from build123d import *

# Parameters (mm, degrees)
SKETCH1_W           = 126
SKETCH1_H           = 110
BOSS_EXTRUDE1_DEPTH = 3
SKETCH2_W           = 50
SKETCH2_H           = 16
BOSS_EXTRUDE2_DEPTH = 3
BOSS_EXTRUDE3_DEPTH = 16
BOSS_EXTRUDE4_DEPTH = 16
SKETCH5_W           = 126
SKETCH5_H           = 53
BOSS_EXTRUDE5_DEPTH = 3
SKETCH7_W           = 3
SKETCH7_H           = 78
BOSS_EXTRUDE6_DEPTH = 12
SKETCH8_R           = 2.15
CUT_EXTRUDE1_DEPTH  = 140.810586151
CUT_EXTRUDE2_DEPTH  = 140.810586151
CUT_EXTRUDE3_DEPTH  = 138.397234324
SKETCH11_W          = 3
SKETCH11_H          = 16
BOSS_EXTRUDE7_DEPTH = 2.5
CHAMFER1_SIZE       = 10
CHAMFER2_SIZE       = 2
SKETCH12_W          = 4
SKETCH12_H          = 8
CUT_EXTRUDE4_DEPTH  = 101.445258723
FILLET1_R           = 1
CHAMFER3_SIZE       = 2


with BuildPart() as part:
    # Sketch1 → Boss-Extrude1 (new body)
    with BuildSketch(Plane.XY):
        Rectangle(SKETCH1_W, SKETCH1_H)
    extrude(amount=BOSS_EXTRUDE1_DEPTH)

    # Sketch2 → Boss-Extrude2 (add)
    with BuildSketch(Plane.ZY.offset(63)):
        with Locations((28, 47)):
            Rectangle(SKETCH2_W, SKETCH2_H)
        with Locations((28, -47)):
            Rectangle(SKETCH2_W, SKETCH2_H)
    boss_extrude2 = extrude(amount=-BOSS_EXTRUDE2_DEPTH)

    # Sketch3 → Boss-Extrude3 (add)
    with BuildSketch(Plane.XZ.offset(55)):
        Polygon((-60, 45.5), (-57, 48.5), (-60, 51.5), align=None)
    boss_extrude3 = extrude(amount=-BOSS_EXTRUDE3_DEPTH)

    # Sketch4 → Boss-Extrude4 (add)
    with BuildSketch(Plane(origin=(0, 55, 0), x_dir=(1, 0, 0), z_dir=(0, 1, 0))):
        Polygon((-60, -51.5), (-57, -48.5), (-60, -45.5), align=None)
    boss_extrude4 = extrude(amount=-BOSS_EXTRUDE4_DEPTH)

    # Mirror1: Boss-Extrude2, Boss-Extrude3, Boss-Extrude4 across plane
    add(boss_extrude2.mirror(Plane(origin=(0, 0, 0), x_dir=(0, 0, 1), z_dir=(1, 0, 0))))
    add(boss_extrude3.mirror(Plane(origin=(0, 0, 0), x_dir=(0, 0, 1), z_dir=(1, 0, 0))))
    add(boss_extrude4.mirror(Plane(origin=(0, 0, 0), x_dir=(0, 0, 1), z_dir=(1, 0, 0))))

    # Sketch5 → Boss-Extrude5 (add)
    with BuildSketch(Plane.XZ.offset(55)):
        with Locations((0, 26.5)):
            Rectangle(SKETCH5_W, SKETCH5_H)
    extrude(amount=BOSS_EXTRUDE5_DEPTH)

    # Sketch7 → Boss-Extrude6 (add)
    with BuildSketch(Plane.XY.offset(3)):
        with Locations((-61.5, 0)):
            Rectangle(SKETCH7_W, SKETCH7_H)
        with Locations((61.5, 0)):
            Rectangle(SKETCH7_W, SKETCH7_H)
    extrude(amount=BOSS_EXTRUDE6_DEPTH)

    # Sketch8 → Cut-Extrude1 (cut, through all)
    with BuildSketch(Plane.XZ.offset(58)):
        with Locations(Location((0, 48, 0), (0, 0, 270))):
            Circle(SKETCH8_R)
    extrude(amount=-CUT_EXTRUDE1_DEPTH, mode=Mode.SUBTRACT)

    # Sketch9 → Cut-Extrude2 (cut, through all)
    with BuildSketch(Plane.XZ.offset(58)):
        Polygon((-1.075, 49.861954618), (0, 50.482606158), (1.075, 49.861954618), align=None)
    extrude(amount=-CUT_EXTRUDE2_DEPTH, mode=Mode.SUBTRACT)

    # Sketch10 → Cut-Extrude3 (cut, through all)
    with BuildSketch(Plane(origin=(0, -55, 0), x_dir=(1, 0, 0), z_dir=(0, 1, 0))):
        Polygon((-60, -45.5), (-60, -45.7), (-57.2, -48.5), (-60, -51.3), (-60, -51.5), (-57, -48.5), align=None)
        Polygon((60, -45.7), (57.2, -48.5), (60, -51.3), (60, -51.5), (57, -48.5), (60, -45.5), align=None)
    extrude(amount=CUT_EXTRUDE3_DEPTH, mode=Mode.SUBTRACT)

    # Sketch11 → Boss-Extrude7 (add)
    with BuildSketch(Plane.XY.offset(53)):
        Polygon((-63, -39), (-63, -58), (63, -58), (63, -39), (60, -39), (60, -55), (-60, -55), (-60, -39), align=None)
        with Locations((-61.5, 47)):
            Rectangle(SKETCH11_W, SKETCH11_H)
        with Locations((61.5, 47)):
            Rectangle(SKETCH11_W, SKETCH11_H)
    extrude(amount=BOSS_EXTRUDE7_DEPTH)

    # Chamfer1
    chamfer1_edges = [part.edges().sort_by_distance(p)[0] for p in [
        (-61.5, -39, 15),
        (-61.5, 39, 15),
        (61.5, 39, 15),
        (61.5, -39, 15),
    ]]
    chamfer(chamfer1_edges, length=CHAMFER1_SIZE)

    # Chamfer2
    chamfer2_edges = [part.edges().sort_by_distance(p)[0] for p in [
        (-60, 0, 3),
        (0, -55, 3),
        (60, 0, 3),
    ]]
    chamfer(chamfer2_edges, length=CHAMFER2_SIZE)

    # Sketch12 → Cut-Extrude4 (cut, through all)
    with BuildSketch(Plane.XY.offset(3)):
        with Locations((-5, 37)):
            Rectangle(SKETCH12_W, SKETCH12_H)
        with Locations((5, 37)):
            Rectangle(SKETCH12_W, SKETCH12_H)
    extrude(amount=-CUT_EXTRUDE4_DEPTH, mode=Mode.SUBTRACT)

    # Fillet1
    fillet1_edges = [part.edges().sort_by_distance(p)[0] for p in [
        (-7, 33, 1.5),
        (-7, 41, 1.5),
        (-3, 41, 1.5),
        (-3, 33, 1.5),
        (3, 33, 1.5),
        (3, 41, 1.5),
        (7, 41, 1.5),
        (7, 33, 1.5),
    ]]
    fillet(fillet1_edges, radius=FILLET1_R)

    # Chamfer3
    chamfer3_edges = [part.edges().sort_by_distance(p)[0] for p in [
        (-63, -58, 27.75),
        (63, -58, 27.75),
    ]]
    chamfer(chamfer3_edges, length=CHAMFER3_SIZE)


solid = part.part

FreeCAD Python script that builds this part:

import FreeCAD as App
import Part
import Sketcher
Q = App.Units.Quantity


def edges_at(feature, points):
    """Names of the edges that pass closest to the given points."""
    edges = feature.Shape.Edges
    near = lambda p: min(range(len(edges)), key=lambda i: edges[i].distToShape(Part.Vertex(*p))[0])
    return sorted({f"Edge{near(p) + 1}" for p in points})

doc = App.newDocument("Part")
body = doc.addObject("PartDesign::Body", "Body")

sketch1 = body.newObject("Sketcher::SketchObject", "Sketch")
sketch1.AttachmentSupport = (doc.getObject("XY_Plane"), [""])
sketch1.MapMode = "FlatFace"
sketch1.addGeometry([
    Part.LineSegment(App.Vector(-63, 55, 0), App.Vector(-63, -55, 0)),
    Part.LineSegment(App.Vector(-63, -55, 0), App.Vector(63, -55, 0)),
    Part.LineSegment(App.Vector(63, -55, 0), App.Vector(63, 55, 0)),
    Part.LineSegment(App.Vector(63, 55, 0), App.Vector(-63, 55, 0)),
], False)
sketch1.addConstraint([
    Sketcher.Constraint("Coincident", 0, 2, 1, 1),
    Sketcher.Constraint("Coincident", 1, 2, 2, 1),
    Sketcher.Constraint("Coincident", 2, 2, 3, 1),
    Sketcher.Constraint("Coincident", 3, 2, 0, 1),
    Sketcher.Constraint("Vertical", 0),
    Sketcher.Constraint("Horizontal", 1),
    Sketcher.Constraint("Vertical", 2),
    Sketcher.Constraint("Horizontal", 3),
    Sketcher.Constraint("Symmetric", 0, 2, 2, 2, -1, 1),
    Sketcher.Constraint("DistanceX", 1, 1, 1, 2, Q("126 mm")),
    Sketcher.Constraint("DistanceY", 0, 2, 0, 1, Q("110 mm")),
])
pad1 = body.newObject("PartDesign::Pad", "Pad")
pad1.Profile = sketch1
pad1.Length = 3

sketch2 = body.newObject("Sketcher::SketchObject", "Sketch001")
sketch2.AttachmentSupport = (doc.getObject("YZ_Plane"), [""])
sketch2.MapMode = "FlatFace"
sketch2.AttachmentOffset = App.Placement(App.Vector(0, 0, -63), App.Rotation())
sketch2.addGeometry([
    Part.LineSegment(App.Vector(55, 3, 0), App.Vector(39, 3, 0)),
    Part.LineSegment(App.Vector(39, 3, 0), App.Vector(39, 53, 0)),
    Part.LineSegment(App.Vector(39, 53, 0), App.Vector(55, 53, 0)),
    Part.LineSegment(App.Vector(55, 53, 0), App.Vector(55, 3, 0)),
    Part.LineSegment(App.Vector(-39, 3, 0), App.Vector(-55, 3, 0)),
    Part.LineSegment(App.Vector(-55, 3, 0), App.Vector(-55, 53, 0)),
    Part.LineSegment(App.Vector(-55, 53, 0), App.Vector(-39, 53, 0)),
    Part.LineSegment(App.Vector(-39, 53, 0), App.Vector(-39, 3, 0)),
], False)
sketch2.addConstraint([
    Sketcher.Constraint("Coincident", 0, 2, 1, 1),
    Sketcher.Constraint("Coincident", 1, 2, 2, 1),
    Sketcher.Constraint("Coincident", 2, 2, 3, 1),
    Sketcher.Constraint("Coincident", 3, 2, 0, 1),
    Sketcher.Constraint("Coincident", 4, 2, 5, 1),
    Sketcher.Constraint("Coincident", 5, 2, 6, 1),
    Sketcher.Constraint("Coincident", 6, 2, 7, 1),
    Sketcher.Constraint("Coincident", 7, 2, 4, 1),
    Sketcher.Constraint("Horizontal", 0),
    Sketcher.Constraint("Vertical", 1),
    Sketcher.Constraint("Horizontal", 2),
    Sketcher.Constraint("Vertical", 3),
    Sketcher.Constraint("Horizontal", 4),
    Sketcher.Constraint("Vertical", 5),
    Sketcher.Constraint("Horizontal", 6),
    Sketcher.Constraint("Vertical", 7),
    Sketcher.Constraint("Symmetric", 3, 2, 4, 2, -2),
    Sketcher.Constraint("Symmetric", 1, 2, 6, 2, -2),
    Sketcher.Constraint("DistanceX", 0, 2, 0, 1, Q("16 mm")),
    Sketcher.Constraint("DistanceY", 1, 1, 1, 2, Q("50 mm")),
    Sketcher.Constraint("DistanceX", -1, 1, 0, 2, Q("39 mm")),
    Sketcher.Constraint("DistanceY", -1, 1, 0, 2, Q("3 mm")),
])
pad2 = body.newObject("PartDesign::Pad", "Pad001")
pad2.Profile = sketch2
pad2.Length = 3

sketch3 = body.newObject("Sketcher::SketchObject", "Sketch002")
sketch3.AttachmentSupport = (doc.getObject("XZ_Plane"), [""])
sketch3.MapMode = "FlatFace"
sketch3.AttachmentOffset = App.Placement(App.Vector(0, 0, 55), App.Rotation())
sketch3.addGeometry([
    Part.LineSegment(App.Vector(-60, 45.5, 0), App.Vector(-57, 48.5, 0)),
    Part.LineSegment(App.Vector(-57, 48.5, 0), App.Vector(-60, 51.5, 0)),
    Part.LineSegment(App.Vector(-60, 51.5, 0), App.Vector(-60, 45.5, 0)),
], False)
sketch3.addConstraint([
    Sketcher.Constraint("Coincident", 0, 2, 1, 1),
    Sketcher.Constraint("Coincident", 1, 2, 2, 1),
    Sketcher.Constraint("Coincident", 2, 2, 0, 1),
    Sketcher.Constraint("Vertical", 2),
    Sketcher.Constraint("Perpendicular", 0, 1),
    Sketcher.Constraint("Equal", 0, 1),
    Sketcher.Constraint("DistanceY", 2, 2, 2, 1, Q("6 mm")),
    Sketcher.Constraint("DistanceX", 0, 2, -1, 1, Q("57 mm")),
    Sketcher.Constraint("DistanceY", -1, 1, 0, 2, Q("48.5 mm")),
])
pad3 = body.newObject("PartDesign::Pad", "Pad002")
pad3.Profile = sketch3
pad3.Length = 16
pad3.Reversed = True

sketch4 = body.newObject("Sketcher::SketchObject", "Sketch003")
sketch4.AttachmentSupport = (doc.getObject("XZ_Plane"), [""])
sketch4.MapMode = "FlatFace"
sketch4.AttachmentOffset = App.Placement(App.Vector(0, 0, -55), App.Rotation())
sketch4.addGeometry([
    Part.LineSegment(App.Vector(-60, 51.5, 0), App.Vector(-57, 48.5, 0)),
    Part.LineSegment(App.Vector(-57, 48.5, 0), App.Vector(-60, 45.5, 0)),
    Part.LineSegment(App.Vector(-60, 45.5, 0), App.Vector(-60, 51.5, 0)),
], False)
sketch4.addConstraint([
    Sketcher.Constraint("Coincident", 0, 2, 1, 1),
    Sketcher.Constraint("Coincident", 1, 2, 2, 1),
    Sketcher.Constraint("Coincident", 2, 2, 0, 1),
    Sketcher.Constraint("Vertical", 2),
    Sketcher.Constraint("Perpendicular", 0, 1),
    Sketcher.Constraint("Equal", 0, 1),
    Sketcher.Constraint("DistanceY", 2, 1, 2, 2, Q("6 mm")),
    Sketcher.Constraint("DistanceX", 0, 2, -1, 1, Q("57 mm")),
    Sketcher.Constraint("DistanceY", -1, 1, 0, 2, Q("48.5 mm")),
])
pad4 = body.newObject("PartDesign::Pad", "Pad003")
pad4.Profile = sketch4
pad4.Length = 16
doc.recompute()

mirrored = body.newObject("PartDesign::Mirrored", "Mirrored")
mirrored.Originals = [pad2, pad3, pad4]
mirrored.MirrorPlane = (doc.getObject("YZ_Plane"), [""])
body.Tip = mirrored

sketch5 = body.newObject("Sketcher::SketchObject", "Sketch004")
sketch5.AttachmentSupport = (doc.getObject("XZ_Plane"), [""])
sketch5.MapMode = "FlatFace"
sketch5.AttachmentOffset = App.Placement(App.Vector(0, 0, 55), App.Rotation())
sketch5.addGeometry([
    Part.LineSegment(App.Vector(-63, 53, 0), App.Vector(-63, 0, 0)),
    Part.LineSegment(App.Vector(-63, 0, 0), App.Vector(63, 0, 0)),
    Part.LineSegment(App.Vector(63, 0, 0), App.Vector(63, 53, 0)),
    Part.LineSegment(App.Vector(63, 53, 0), App.Vector(-63, 53, 0)),
], False)
sketch5.addConstraint([
    Sketcher.Constraint("Coincident", 0, 2, 1, 1),
    Sketcher.Constraint("Coincident", 1, 2, 2, 1),
    Sketcher.Constraint("Coincident", 2, 2, 3, 1),
    Sketcher.Constraint("Coincident", 3, 2, 0, 1),
    Sketcher.Constraint("Vertical", 0),
    Sketcher.Constraint("Horizontal", 1),
    Sketcher.Constraint("Vertical", 2),
    Sketcher.Constraint("Horizontal", 3),
    Sketcher.Constraint("Symmetric", 0, 2, 1, 2, -1, 1),
    Sketcher.Constraint("DistanceX", 1, 1, 1, 2, Q("126 mm")),
    Sketcher.Constraint("DistanceY", 0, 2, 0, 1, Q("53 mm")),
])
pad5 = body.newObject("PartDesign::Pad", "Pad004")
pad5.Profile = sketch5
pad5.Length = 3

sketch6 = body.newObject("Sketcher::SketchObject", "Sketch005")
sketch6.AttachmentSupport = (doc.getObject("XY_Plane"), [""])
sketch6.MapMode = "FlatFace"
sketch6.AttachmentOffset = App.Placement(App.Vector(0, 0, 3), App.Rotation())
sketch6.addGeometry([
    Part.LineSegment(App.Vector(-63, 39, 0), App.Vector(-63, -39, 0)),
    Part.LineSegment(App.Vector(-63, -39, 0), App.Vector(-60, -39, 0)),
    Part.LineSegment(App.Vector(-60, -39, 0), App.Vector(-60, 39, 0)),
    Part.LineSegment(App.Vector(-60, 39, 0), App.Vector(-63, 39, 0)),
    Part.LineSegment(App.Vector(60, 39, 0), App.Vector(60, -39, 0)),
    Part.LineSegment(App.Vector(60, -39, 0), App.Vector(63, -39, 0)),
    Part.LineSegment(App.Vector(63, -39, 0), App.Vector(63, 39, 0)),
    Part.LineSegment(App.Vector(63, 39, 0), App.Vector(60, 39, 0)),
], False)
sketch6.addConstraint([
    Sketcher.Constraint("Coincident", 0, 2, 1, 1),
    Sketcher.Constraint("Coincident", 1, 2, 2, 1),
    Sketcher.Constraint("Coincident", 2, 2, 3, 1),
    Sketcher.Constraint("Coincident", 3, 2, 0, 1),
    Sketcher.Constraint("Coincident", 4, 2, 5, 1),
    Sketcher.Constraint("Coincident", 5, 2, 6, 1),
    Sketcher.Constraint("Coincident", 6, 2, 7, 1),
    Sketcher.Constraint("Coincident", 7, 2, 4, 1),
    Sketcher.Constraint("Vertical", 0),
    Sketcher.Constraint("Horizontal", 1),
    Sketcher.Constraint("Vertical", 2),
    Sketcher.Constraint("Horizontal", 3),
    Sketcher.Constraint("Vertical", 4),
    Sketcher.Constraint("Horizontal", 5),
    Sketcher.Constraint("Vertical", 6),
    Sketcher.Constraint("Horizontal", 7),
    Sketcher.Constraint("Symmetric", 2, 2, 4, 2, -1, 1),
    Sketcher.Constraint("Symmetric", 0, 2, 6, 2, -1, 1),
    Sketcher.Constraint("Horizontal", 1, 2, 4, 2),
    Sketcher.Constraint("DistanceX", 1, 1, 1, 2, Q("3 mm")),
    Sketcher.Constraint("DistanceY", 0, 2, 0, 1, Q("78 mm")),
    Sketcher.Constraint("DistanceX", 0, 2, -1, 1, Q("63 mm")),
])
pad6 = body.newObject("PartDesign::Pad", "Pad005")
pad6.Profile = sketch6
pad6.Length = 12

sketch7 = body.newObject("Sketcher::SketchObject", "Sketch006")
sketch7.AttachmentSupport = (doc.getObject("XZ_Plane"), [""])
sketch7.MapMode = "FlatFace"
sketch7.AttachmentOffset = App.Placement(App.Vector(0, 0, 58), App.Rotation())
sketch7.addGeometry(Part.Circle(App.Vector(0, 48, 0), App.Vector(0, 0, 1), 2.15), False)
sketch7.addConstraint([
    Sketcher.Constraint("PointOnObject", 0, 3, -2),
    Sketcher.Constraint("Diameter", 0, Q("4.3 mm")),
    Sketcher.Constraint("DistanceY", -1, 1, 0, 3, Q("48 mm")),
])
pocket1 = body.newObject("PartDesign::Pocket", "Pocket")
pocket1.Profile = sketch7
pocket1.Type = "ThroughAll"

sketch8 = body.newObject("Sketcher::SketchObject", "Sketch007")
sketch8.AttachmentSupport = (doc.getObject("XZ_Plane"), [""])
sketch8.MapMode = "FlatFace"
sketch8.AttachmentOffset = App.Placement(App.Vector(0, 0, 58), App.Rotation())
sketch8.addGeometry([
    Part.LineSegment(App.Vector(0, 50.482606, 0), App.Vector(-1.075, 49.861955, 0)),
    Part.LineSegment(App.Vector(-1.075, 49.861955, 0), App.Vector(1.075, 49.861955, 0)),
    Part.LineSegment(App.Vector(1.075, 49.861955, 0), App.Vector(0, 50.482606, 0)),
], False)
sketch8.addConstraint([
    Sketcher.Constraint("Coincident", 0, 2, 1, 1),
    Sketcher.Constraint("Coincident", 1, 2, 2, 1),
    Sketcher.Constraint("Coincident", 2, 2, 0, 1),
    Sketcher.Constraint("Horizontal", 1),
    Sketcher.Constraint("PointOnObject", 2, 2, -2),
    Sketcher.Constraint("Equal", 0, 2),
    Sketcher.Constraint("Angle", 0, Q("-150 deg")),
    Sketcher.Constraint("DistanceX", 1, 1, 1, 2, Q("2.15 mm")),
    Sketcher.Constraint("DistanceY", -1, 1, 0, 2, Q("49.861955 mm")),
])
pocket2 = body.newObject("PartDesign::Pocket", "Pocket001")
pocket2.Profile = sketch8
pocket2.Type = "ThroughAll"

sketch9 = body.newObject("Sketcher::SketchObject", "Sketch008")
sketch9.AttachmentSupport = (doc.getObject("XZ_Plane"), [""])
sketch9.MapMode = "FlatFace"
sketch9.AttachmentOffset = App.Placement(App.Vector(0, 0, 55), App.Rotation())
sketch9.addGeometry([
    Part.LineSegment(App.Vector(-60, 45.5, 0), App.Vector(-60, 45.7, 0)),
    Part.LineSegment(App.Vector(-60, 45.7, 0), App.Vector(-57.2, 48.5, 0)),
    Part.LineSegment(App.Vector(-57.2, 48.5, 0), App.Vector(-60, 51.3, 0)),
    Part.LineSegment(App.Vector(-60, 51.3, 0), App.Vector(-60, 51.5, 0)),
    Part.LineSegment(App.Vector(-60, 51.5, 0), App.Vector(-57, 48.5, 0)),
    Part.LineSegment(App.Vector(-57, 48.5, 0), App.Vector(-60, 45.5, 0)),
    Part.LineSegment(App.Vector(57.2, 48.5, 0), App.Vector(60, 45.7, 0)),
    Part.LineSegment(App.Vector(60, 45.7, 0), App.Vector(60, 45.5, 0)),
    Part.LineSegment(App.Vector(60, 45.5, 0), App.Vector(57, 48.5, 0)),
    Part.LineSegment(App.Vector(57, 48.5, 0), App.Vector(60, 51.5, 0)),
    Part.LineSegment(App.Vector(60, 51.5, 0), App.Vector(60, 51.3, 0)),
    Part.LineSegment(App.Vector(60, 51.3, 0), App.Vector(57.2, 48.5, 0)),
], False)
sketch9.addConstraint([
    Sketcher.Constraint("Coincident", 0, 2, 1, 1),
    Sketcher.Constraint("Coincident", 1, 2, 2, 1),
    Sketcher.Constraint("Coincident", 2, 2, 3, 1),
    Sketcher.Constraint("Coincident", 3, 2, 4, 1),
    Sketcher.Constraint("Coincident", 4, 2, 5, 1),
    Sketcher.Constraint("Coincident", 5, 2, 0, 1),
    Sketcher.Constraint("Coincident", 6, 2, 7, 1),
    Sketcher.Constraint("Coincident", 7, 2, 8, 1),
    Sketcher.Constraint("Coincident", 8, 2, 9, 1),
    Sketcher.Constraint("Coincident", 9, 2, 10, 1),
    Sketcher.Constraint("Coincident", 10, 2, 11, 1),
    Sketcher.Constraint("Coincident", 11, 2, 6, 1),
    Sketcher.Constraint("Vertical", 0),
    Sketcher.Constraint("Vertical", 3),
    Sketcher.Constraint("Vertical", 7),
    Sketcher.Constraint("Vertical", 10),
    Sketcher.Constraint("Symmetric", 0, 2, 6, 2, -2),
    Sketcher.Constraint("Symmetric", 4, 2, 8, 2, -2),
    Sketcher.Constraint("Symmetric", 3, 2, 9, 2, -2),
    Sketcher.Constraint("Symmetric", 1, 2, 11, 2, -2),
    Sketcher.Constraint("Perpendicular", 1, 2),
    Sketcher.Constraint("Parallel", 2, 4),
    Sketcher.Constraint("Perpendicular", 4, 5),
    Sketcher.Constraint("Perpendicular", 5, 6),
    Sketcher.Constraint("Parallel", 6, 8),
    Sketcher.Constraint("Parallel", 9, 11),
    Sketcher.Constraint("Horizontal", 1, 2, 4, 2),
    Sketcher.Constraint("Vertical", 0, 2, 2, 2),
    Sketcher.Constraint("DistanceY", 0, 1, 0, 2, Q("0.2 mm")),
    Sketcher.Constraint("DistanceX", 0, 2, -1, 1, Q("60 mm")),
    Sketcher.Constraint("DistanceX", 4, 2, -1, 1, Q("57 mm")),
    Sketcher.Constraint("DistanceY", -1, 1, 0, 2, Q("45.7 mm")),
])
pocket3 = body.newObject("PartDesign::Pocket", "Pocket002")
pocket3.Profile = sketch9
pocket3.Type = "ThroughAll"

sketch10 = body.newObject("Sketcher::SketchObject", "Sketch009")
sketch10.AttachmentSupport = (doc.getObject("XY_Plane"), [""])
sketch10.MapMode = "FlatFace"
sketch10.AttachmentOffset = App.Placement(App.Vector(0, 0, 53), App.Rotation())
sketch10.addGeometry([
    Part.LineSegment(App.Vector(-63, -39, 0), App.Vector(-63, -58, 0)),
    Part.LineSegment(App.Vector(-63, -58, 0), App.Vector(63, -58, 0)),
    Part.LineSegment(App.Vector(63, -58, 0), App.Vector(63, -39, 0)),
    Part.LineSegment(App.Vector(63, -39, 0), App.Vector(60, -39, 0)),
    Part.LineSegment(App.Vector(60, -39, 0), App.Vector(60, -55, 0)),
    Part.LineSegment(App.Vector(60, -55, 0), App.Vector(-60, -55, 0)),
    Part.LineSegment(App.Vector(-60, -55, 0), App.Vector(-60, -39, 0)),
    Part.LineSegment(App.Vector(-60, -39, 0), App.Vector(-63, -39, 0)),
    Part.LineSegment(App.Vector(-63, 55, 0), App.Vector(-63, 39, 0)),
    Part.LineSegment(App.Vector(-63, 39, 0), App.Vector(-60, 39, 0)),
    Part.LineSegment(App.Vector(-60, 39, 0), App.Vector(-60, 55, 0)),
    Part.LineSegment(App.Vector(-60, 55, 0), App.Vector(-63, 55, 0)),
    Part.LineSegment(App.Vector(60, 55, 0), App.Vector(60, 39, 0)),
    Part.LineSegment(App.Vector(60, 39, 0), App.Vector(63, 39, 0)),
    Part.LineSegment(App.Vector(63, 39, 0), App.Vector(63, 55, 0)),
    Part.LineSegment(App.Vector(63, 55, 0), App.Vector(60, 55, 0)),
], False)
sketch10.addConstraint([
    Sketcher.Constraint("Coincident", 0, 2, 1, 1),
    Sketcher.Constraint("Coincident", 1, 2, 2, 1),
    Sketcher.Constraint("Coincident", 2, 2, 3, 1),
    Sketcher.Constraint("Coincident", 3, 2, 4, 1),
    Sketcher.Constraint("Coincident", 4, 2, 5, 1),
    Sketcher.Constraint("Coincident", 5, 2, 6, 1),
    Sketcher.Constraint("Coincident", 6, 2, 7, 1),
    Sketcher.Constraint("Coincident", 7, 2, 0, 1),
    Sketcher.Constraint("Coincident", 8, 2, 9, 1),
    Sketcher.Constraint("Coincident", 9, 2, 10, 1),
    Sketcher.Constraint("Coincident", 10, 2, 11, 1),
    Sketcher.Constraint("Coincident", 11, 2, 8, 1),
    Sketcher.Constraint("Coincident", 12, 2, 13, 1),
    Sketcher.Constraint("Coincident", 13, 2, 14, 1),
    Sketcher.Constraint("Coincident", 14, 2, 15, 1),
    Sketcher.Constraint("Coincident", 15, 2, 12, 1),
    Sketcher.Constraint("Vertical", 0),
    Sketcher.Constraint("Horizontal", 1),
    Sketcher.Constraint("Vertical", 2),
    Sketcher.Constraint("Horizontal", 3),
    Sketcher.Constraint("Vertical", 4),
    Sketcher.Constraint("Horizontal", 5),
    Sketcher.Constraint("Vertical", 6),
    Sketcher.Constraint("Horizontal", 7),
    Sketcher.Constraint("Vertical", 8),
    Sketcher.Constraint("Horizontal", 9),
    Sketcher.Constraint("Vertical", 10),
    Sketcher.Constraint("Horizontal", 11),
    Sketcher.Constraint("Vertical", 12),
    Sketcher.Constraint("Horizontal", 13),
    Sketcher.Constraint("Vertical", 14),
    Sketcher.Constraint("Horizontal", 15),
    Sketcher.Constraint("Symmetric", 2, 2, 8, 2, -1, 1),
    Sketcher.Constraint("Symmetric", 4, 2, 10, 2, -1, 1),
    Sketcher.Constraint("Symmetric", 6, 2, 12, 2, -1, 1),
    Sketcher.Constraint("Symmetric", 3, 2, 6, 2, -2),
    Sketcher.Constraint("Symmetric", 11, 2, 14, 2, -2),
    Sketcher.Constraint("Vertical", 7, 2, 8, 2),
    Sketcher.Constraint("DistanceX", 1, 1, 1, 2, Q("126 mm")),
    Sketcher.Constraint("DistanceX", 3, 2, 3, 1, Q("3 mm")),
    Sketcher.Constraint("DistanceY", 0, 2, 0, 1, Q("19 mm")),
    Sketcher.Constraint("DistanceY", 4, 2, 4, 1, Q("16 mm")),
    Sketcher.Constraint("DistanceY", 0, 2, -1, 1, Q("58 mm")),
])
pad7 = body.newObject("PartDesign::Pad", "Pad006")
pad7.Profile = sketch10
pad7.Length = 2.5
doc.recompute()

chamfer = body.newObject("PartDesign::Chamfer", "Chamfer")
chamfer.Base = (pad7, edges_at(pad7, [
    (-61.5, -39, 15),
    (-61.5, 39, 15),
    (61.5, 39, 15),
    (61.5, -39, 15),
]))
chamfer.Size = 10
doc.recompute()

chamfer2 = body.newObject("PartDesign::Chamfer", "Chamfer001")
chamfer2.Base = (chamfer, edges_at(chamfer, [(-60, 0, 3), (0, -55, 3), (60, 0, 3)]))
chamfer2.Size = 2

sketch11 = body.newObject("Sketcher::SketchObject", "Sketch010")
sketch11.AttachmentSupport = (doc.getObject("XY_Plane"), [""])
sketch11.MapMode = "FlatFace"
sketch11.AttachmentOffset = App.Placement(App.Vector(0, 0, 3), App.Rotation())
sketch11.addGeometry([
    Part.LineSegment(App.Vector(-7, 41, 0), App.Vector(-7, 33, 0)),
    Part.LineSegment(App.Vector(-7, 33, 0), App.Vector(-3, 33, 0)),
    Part.LineSegment(App.Vector(-3, 33, 0), App.Vector(-3, 41, 0)),
    Part.LineSegment(App.Vector(-3, 41, 0), App.Vector(-7, 41, 0)),
    Part.LineSegment(App.Vector(3, 41, 0), App.Vector(3, 33, 0)),
    Part.LineSegment(App.Vector(3, 33, 0), App.Vector(7, 33, 0)),
    Part.LineSegment(App.Vector(7, 33, 0), App.Vector(7, 41, 0)),
    Part.LineSegment(App.Vector(7, 41, 0), App.Vector(3, 41, 0)),
], False)
sketch11.addConstraint([
    Sketcher.Constraint("Coincident", 0, 2, 1, 1),
    Sketcher.Constraint("Coincident", 1, 2, 2, 1),
    Sketcher.Constraint("Coincident", 2, 2, 3, 1),
    Sketcher.Constraint("Coincident", 3, 2, 0, 1),
    Sketcher.Constraint("Coincident", 4, 2, 5, 1),
    Sketcher.Constraint("Coincident", 5, 2, 6, 1),
    Sketcher.Constraint("Coincident", 6, 2, 7, 1),
    Sketcher.Constraint("Coincident", 7, 2, 4, 1),
    Sketcher.Constraint("Vertical", 0),
    Sketcher.Constraint("Horizontal", 1),
    Sketcher.Constraint("Vertical", 2),
    Sketcher.Constraint("Horizontal", 3),
    Sketcher.Constraint("Vertical", 4),
    Sketcher.Constraint("Horizontal", 5),
    Sketcher.Constraint("Vertical", 6),
    Sketcher.Constraint("Horizontal", 7),
    Sketcher.Constraint("Symmetric", 1, 2, 4, 2, -2),
    Sketcher.Constraint("Symmetric", 3, 2, 6, 2, -2),
    Sketcher.Constraint("DistanceX", 1, 1, 1, 2, Q("4 mm")),
    Sketcher.Constraint("DistanceY", 0, 2, 0, 1, Q("8 mm")),
    Sketcher.Constraint("DistanceX", 0, 2, -1, 1, Q("7 mm")),
    Sketcher.Constraint("DistanceY", -1, 1, 0, 2, Q("33 mm")),
])
pocket4 = body.newObject("PartDesign::Pocket", "Pocket003")
pocket4.Profile = sketch11
pocket4.Type = "ThroughAll"
doc.recompute()

fillet = body.newObject("PartDesign::Fillet", "Fillet")
fillet.Base = (pocket4, edges_at(pocket4, [
    (-7, 33, 1.5),
    (-7, 41, 1.5),
    (-3, 41, 1.5),
    (-3, 33, 1.5),
    (3, 33, 1.5),
    (3, 41, 1.5),
    (7, 41, 1.5),
    (7, 33, 1.5),
]))
fillet.Radius = 1
doc.recompute()

chamfer3 = body.newObject("PartDesign::Chamfer", "Chamfer002")
chamfer3.Base = (fillet, edges_at(fillet, [(-63, -58, 27.75), (63, -58, 27.75)]))
chamfer3.Size = 2

doc.recompute()
